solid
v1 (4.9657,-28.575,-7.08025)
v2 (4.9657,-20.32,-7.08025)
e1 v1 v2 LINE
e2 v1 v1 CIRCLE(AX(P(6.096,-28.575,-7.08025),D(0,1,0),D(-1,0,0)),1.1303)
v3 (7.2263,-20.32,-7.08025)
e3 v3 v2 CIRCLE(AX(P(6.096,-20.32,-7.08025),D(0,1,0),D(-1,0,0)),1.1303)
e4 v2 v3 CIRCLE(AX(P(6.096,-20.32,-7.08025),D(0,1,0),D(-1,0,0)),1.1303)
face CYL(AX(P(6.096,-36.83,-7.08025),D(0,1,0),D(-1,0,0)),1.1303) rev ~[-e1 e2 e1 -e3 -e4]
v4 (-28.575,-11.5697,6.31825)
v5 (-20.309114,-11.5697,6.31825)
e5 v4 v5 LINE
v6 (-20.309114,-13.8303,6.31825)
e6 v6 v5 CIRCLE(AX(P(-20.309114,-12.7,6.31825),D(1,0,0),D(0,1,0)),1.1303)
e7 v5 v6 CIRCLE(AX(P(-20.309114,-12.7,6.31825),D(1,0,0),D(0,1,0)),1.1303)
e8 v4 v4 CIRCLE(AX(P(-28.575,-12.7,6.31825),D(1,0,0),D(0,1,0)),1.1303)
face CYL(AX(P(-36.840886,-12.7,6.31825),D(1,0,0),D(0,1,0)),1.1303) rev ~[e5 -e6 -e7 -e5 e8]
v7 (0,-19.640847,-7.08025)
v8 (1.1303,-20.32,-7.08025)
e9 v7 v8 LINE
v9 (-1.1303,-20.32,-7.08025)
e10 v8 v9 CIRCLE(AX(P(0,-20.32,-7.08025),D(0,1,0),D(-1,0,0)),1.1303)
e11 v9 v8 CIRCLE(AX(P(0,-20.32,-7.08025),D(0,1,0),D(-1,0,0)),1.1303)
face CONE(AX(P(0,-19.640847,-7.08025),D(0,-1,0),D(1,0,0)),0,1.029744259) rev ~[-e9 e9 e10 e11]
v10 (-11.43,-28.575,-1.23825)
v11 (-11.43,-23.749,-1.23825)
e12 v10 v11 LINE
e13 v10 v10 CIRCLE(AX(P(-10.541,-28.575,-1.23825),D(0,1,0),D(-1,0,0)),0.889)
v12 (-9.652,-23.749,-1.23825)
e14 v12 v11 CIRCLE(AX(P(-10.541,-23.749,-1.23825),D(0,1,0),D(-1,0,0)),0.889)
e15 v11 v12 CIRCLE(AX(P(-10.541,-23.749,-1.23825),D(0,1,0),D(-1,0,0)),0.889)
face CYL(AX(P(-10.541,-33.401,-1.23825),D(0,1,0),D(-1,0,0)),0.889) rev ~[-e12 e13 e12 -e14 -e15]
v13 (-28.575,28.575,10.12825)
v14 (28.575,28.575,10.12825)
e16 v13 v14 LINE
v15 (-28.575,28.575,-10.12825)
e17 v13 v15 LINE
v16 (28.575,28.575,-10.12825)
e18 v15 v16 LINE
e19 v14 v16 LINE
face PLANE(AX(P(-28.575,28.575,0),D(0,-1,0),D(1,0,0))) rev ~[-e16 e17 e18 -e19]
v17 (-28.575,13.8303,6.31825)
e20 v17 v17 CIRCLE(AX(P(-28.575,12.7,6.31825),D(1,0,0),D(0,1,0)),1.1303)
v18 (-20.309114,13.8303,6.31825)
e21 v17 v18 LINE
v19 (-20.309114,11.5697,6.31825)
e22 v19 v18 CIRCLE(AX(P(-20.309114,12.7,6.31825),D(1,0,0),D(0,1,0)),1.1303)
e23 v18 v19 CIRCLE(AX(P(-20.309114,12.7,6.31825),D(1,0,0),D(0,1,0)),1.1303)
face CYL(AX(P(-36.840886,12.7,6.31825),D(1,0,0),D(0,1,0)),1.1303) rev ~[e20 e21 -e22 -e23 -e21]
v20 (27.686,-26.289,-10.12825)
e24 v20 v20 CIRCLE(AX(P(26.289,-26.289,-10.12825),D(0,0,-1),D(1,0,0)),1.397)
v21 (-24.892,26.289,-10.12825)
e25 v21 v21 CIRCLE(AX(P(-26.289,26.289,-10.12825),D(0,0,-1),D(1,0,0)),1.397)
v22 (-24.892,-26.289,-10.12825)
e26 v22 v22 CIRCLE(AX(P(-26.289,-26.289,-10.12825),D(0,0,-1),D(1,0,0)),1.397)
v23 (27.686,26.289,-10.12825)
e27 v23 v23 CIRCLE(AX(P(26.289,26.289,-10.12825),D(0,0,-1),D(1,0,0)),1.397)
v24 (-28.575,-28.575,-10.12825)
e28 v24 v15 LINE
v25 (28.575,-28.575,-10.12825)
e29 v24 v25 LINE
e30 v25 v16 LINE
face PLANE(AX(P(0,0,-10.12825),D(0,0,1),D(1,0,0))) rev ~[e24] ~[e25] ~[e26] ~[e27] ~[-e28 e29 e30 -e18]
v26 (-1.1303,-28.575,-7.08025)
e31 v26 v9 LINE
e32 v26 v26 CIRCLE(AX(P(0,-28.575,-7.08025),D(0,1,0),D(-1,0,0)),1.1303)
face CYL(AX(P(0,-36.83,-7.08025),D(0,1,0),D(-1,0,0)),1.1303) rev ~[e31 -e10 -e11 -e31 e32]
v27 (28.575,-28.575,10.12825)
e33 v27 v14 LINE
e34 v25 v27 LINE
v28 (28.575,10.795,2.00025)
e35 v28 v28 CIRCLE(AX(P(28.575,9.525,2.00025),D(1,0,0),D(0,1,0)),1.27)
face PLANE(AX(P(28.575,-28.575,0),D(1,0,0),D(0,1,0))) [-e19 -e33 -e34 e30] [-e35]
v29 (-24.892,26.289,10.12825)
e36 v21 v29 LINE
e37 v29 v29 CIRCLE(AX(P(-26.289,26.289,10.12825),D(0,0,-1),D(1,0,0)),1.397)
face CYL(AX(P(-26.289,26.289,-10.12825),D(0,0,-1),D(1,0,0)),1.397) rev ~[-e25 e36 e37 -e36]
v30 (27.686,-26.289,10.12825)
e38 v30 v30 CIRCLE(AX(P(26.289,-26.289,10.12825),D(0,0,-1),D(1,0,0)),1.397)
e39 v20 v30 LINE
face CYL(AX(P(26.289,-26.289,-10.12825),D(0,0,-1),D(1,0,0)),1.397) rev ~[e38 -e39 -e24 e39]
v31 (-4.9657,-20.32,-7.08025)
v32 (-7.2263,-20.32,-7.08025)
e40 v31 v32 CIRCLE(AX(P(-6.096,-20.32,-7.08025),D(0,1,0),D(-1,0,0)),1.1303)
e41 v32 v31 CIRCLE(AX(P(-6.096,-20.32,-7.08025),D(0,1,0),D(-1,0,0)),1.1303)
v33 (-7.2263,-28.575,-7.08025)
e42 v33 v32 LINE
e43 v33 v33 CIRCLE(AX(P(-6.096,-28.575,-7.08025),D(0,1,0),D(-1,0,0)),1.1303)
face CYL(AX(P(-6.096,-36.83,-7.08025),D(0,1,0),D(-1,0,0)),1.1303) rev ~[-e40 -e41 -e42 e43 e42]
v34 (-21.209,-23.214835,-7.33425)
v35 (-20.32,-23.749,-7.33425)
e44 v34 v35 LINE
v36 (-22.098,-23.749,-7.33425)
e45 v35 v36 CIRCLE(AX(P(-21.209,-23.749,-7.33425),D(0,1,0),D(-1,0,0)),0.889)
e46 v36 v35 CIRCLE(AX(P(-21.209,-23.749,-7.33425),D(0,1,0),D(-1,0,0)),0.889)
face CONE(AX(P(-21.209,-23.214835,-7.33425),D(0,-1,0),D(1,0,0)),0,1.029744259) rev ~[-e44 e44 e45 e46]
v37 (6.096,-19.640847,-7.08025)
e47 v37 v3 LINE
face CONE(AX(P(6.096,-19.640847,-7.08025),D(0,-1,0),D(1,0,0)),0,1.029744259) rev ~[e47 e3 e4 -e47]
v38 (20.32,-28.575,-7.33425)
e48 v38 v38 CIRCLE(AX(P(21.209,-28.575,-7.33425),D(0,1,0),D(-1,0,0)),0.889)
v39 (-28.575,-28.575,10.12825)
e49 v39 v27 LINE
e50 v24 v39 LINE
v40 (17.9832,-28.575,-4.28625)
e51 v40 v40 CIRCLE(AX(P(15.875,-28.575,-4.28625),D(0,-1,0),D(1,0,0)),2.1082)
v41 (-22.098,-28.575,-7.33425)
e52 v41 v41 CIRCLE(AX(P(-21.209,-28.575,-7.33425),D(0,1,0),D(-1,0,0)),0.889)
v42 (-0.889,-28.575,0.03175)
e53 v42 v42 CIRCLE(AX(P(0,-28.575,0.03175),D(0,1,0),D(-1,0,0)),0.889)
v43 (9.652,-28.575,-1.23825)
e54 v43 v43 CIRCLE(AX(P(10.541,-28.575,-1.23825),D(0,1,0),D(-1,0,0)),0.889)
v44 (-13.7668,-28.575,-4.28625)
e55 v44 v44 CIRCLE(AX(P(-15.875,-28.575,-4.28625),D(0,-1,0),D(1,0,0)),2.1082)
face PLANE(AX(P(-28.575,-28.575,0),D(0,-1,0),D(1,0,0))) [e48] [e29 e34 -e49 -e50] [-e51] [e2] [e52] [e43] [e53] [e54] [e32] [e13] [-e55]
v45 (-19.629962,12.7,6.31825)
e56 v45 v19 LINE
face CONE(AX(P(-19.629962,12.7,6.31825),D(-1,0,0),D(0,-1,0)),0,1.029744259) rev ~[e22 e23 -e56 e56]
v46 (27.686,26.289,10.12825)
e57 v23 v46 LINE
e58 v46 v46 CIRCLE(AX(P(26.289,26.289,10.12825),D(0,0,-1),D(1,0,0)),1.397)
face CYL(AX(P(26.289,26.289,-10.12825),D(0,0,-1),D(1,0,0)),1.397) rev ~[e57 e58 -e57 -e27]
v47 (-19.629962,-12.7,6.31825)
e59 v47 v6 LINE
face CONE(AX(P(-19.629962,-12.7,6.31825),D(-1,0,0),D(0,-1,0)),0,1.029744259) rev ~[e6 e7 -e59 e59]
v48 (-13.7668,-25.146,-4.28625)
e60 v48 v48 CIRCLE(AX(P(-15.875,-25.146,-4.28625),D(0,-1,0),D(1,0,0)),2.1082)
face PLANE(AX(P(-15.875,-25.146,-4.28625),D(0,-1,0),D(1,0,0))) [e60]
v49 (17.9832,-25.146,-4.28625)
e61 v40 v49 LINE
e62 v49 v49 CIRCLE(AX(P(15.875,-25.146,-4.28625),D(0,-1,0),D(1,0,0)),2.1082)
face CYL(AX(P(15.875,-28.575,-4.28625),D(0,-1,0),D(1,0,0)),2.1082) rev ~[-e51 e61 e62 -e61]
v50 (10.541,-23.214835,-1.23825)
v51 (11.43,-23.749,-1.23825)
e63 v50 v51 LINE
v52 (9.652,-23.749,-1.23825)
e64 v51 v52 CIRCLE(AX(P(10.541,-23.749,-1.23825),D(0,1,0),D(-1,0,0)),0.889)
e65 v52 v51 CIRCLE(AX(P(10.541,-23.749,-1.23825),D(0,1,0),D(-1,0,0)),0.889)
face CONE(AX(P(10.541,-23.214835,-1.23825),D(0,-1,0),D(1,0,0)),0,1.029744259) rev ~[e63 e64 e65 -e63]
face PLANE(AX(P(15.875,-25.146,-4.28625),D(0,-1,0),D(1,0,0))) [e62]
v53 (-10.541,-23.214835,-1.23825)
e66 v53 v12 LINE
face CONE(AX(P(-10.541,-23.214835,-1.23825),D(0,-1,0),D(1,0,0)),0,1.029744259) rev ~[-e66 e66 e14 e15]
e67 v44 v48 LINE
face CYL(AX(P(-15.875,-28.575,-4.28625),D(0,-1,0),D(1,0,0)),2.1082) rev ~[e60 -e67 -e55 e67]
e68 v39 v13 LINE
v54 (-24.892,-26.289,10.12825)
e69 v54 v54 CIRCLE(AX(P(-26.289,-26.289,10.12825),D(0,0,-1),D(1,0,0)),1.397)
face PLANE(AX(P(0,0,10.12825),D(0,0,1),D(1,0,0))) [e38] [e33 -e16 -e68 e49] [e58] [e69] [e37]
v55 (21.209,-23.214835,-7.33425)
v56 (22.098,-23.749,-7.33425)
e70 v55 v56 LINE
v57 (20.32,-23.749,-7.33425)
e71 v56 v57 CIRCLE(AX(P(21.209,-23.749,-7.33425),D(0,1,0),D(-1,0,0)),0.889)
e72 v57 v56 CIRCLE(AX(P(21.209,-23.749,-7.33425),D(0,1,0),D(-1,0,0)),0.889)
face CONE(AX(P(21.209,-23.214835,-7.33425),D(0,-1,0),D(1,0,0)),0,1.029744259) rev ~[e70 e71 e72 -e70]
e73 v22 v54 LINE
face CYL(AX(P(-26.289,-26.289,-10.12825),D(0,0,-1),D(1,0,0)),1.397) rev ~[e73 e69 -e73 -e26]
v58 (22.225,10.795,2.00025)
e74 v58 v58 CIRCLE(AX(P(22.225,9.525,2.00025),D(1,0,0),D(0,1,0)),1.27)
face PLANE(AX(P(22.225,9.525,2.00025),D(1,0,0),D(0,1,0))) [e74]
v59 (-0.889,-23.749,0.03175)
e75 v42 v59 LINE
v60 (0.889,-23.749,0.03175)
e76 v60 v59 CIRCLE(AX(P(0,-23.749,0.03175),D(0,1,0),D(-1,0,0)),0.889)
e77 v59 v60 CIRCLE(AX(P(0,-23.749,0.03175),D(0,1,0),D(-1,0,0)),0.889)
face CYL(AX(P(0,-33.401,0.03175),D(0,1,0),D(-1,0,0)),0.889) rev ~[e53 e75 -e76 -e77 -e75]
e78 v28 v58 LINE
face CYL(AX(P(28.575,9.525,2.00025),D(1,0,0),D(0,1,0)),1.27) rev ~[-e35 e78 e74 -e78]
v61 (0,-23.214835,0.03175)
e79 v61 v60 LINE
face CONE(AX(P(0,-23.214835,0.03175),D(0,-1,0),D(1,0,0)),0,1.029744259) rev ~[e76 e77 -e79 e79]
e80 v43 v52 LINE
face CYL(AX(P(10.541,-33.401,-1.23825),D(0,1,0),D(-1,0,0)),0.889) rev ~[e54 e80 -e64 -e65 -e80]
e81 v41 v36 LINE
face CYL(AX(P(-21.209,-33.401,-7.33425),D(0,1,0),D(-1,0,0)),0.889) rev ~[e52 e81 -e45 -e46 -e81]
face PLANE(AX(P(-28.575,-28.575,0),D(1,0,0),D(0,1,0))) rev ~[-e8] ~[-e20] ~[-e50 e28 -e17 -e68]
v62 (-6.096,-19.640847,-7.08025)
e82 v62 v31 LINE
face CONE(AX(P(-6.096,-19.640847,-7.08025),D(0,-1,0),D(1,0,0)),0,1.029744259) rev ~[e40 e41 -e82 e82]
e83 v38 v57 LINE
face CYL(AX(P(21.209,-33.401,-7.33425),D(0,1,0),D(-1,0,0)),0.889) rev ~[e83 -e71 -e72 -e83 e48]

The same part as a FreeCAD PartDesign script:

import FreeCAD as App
import Part
import Sketcher

V = App.Vector
Q = App.Units.Quantity


def add_polygon(sketch, points):
    """Adds a closed chain of lines whose ends are joined by coincident constraints."""
    first, n = sketch.GeometryCount, len(points)
    for a, b in zip(points, points[1:] + points[:1]):
        sketch.addGeometry(Part.LineSegment(App.Vector(*a, 0), App.Vector(*b, 0)), False)
    for i in range(n):
        sketch.addConstraint(Sketcher.Constraint("Coincident", first + i, 2, first + (i + 1) % n, 1))

doc = App.newDocument("Part")
body = doc.addObject("PartDesign::Body", "Body")

sketch1 = body.newObject("Sketcher::SketchObject", "Sketch")
sketch1.AttachmentSupport = (doc.getObject("XY_Plane"), [""])
sketch1.MapMode = "FlatFace"
add_polygon(sketch1, [(-29, 29), (-29, -29), (29, -29), (29, 29)])
sketch1.addConstraint(Sketcher.Constraint("Vertical", 0))
sketch1.addConstraint(Sketcher.Constraint("Horizontal", 1))
sketch1.addConstraint(Sketcher.Constraint("Vertical", 2))
sketch1.addConstraint(Sketcher.Constraint("Horizontal", 3))
sketch1.addConstraint(Sketcher.Constraint("Symmetric", 0, 2, 2, 2, -1, 1))
sketch1.addConstraint(Sketcher.Constraint("Equal", 3, 0))
sketch1.addConstraint(Sketcher.Constraint("DistanceX", 1, 1, 1, 2, Q("2.25 in")))
pad1 = body.newObject("PartDesign::Pad", "Pad")
pad1.Profile = sketch1
pad1.Length = Q("0.7975 in")
pad1.Midplane = True

sketch2 = body.newObject("Sketcher::SketchObject", "Sketch001")
sketch2.AttachmentSupport = (doc.getObject("XZ_Plane"), [""])
sketch2.MapMode = "FlatFace"
sketch2.AttachmentOffset = App.Placement(V(0, 0, 1.125 * 25.4), App.Rotation())
sketch2.addGeometry(Part.Circle(V(-15.9, -4.3, 0), V(0, 0, 1), 2.1), False)
sketch2.addGeometry(Part.Circle(V(15.9, -4.3, 0), V(0, 0, 1), 2.1), False)
sketch2.addConstraint(Sketcher.Constraint("Equal", 0, 1))
sketch2.addConstraint(Sketcher.Constraint("Symmetric", 0, 3, 1, 3, -2))
sketch2.addConstraint(Sketcher.Constraint("Diameter", 0, Q("0.166 in")))
sketch2.addConstraint(Sketcher.Constraint("DistanceX", 0, 3, 1, 3, Q("1.25 in")))
sketch2.addConstraint(Sketcher.Constraint("DistanceY", 0, 3, -1, 1, 4.28625))
pocket1 = body.newObject("PartDesign::Pocket", "Pocket")
pocket1.Profile = sketch2
pocket1.Length = Q("0.135 in")

sketch3 = body.newObject("Sketcher::SketchObject", "Sketch002")
sketch3.AttachmentSupport = (doc.getObject("XY_Plane"), [""])
sketch3.MapMode = "FlatFace"
sketch3.AttachmentOffset = App.Placement(V(0, 0, -10.12825), App.Rotation())
sketch3.addGeometry(Part.Circle(V(-26.3, -26.3, 0), V(0, 0, 1), 1.4), False)
sketch3.addGeometry(Part.Circle(V(26.3, -26.3, 0), V(0, 0, 1), 1.4), False)
sketch3.addGeometry(Part.Circle(V(26.3, 26.3, 0), V(0, 0, 1), 1.4), False)
sketch3.addGeometry(Part.Circle(V(-26.3, 26.3, 0), V(0, 0, 1), 1.4), False)
sketch3.addConstraint(Sketcher.Constraint("Equal", 0, 1))
sketch3.addConstraint(Sketcher.Constraint("Equal", 1, 2))
sketch3.addConstraint(Sketcher.Constraint("Equal", 2, 3))
sketch3.addConstraint(Sketcher.Constraint("Symmetric", 0, 3, 2, 3, -1, 1))
sketch3.addConstraint(Sketcher.Constraint("Symmetric", 1, 3, 3, 3, -1, 1))
sketch3.addConstraint(Sketcher.Constraint("Symmetric", 0, 3, 1, 3, -2))
sketch3.addConstraint(Sketcher.Constraint("Diameter", 0, Q("0.11 in")))
sketch3.addConstraint(Sketcher.Constraint("DistanceX", 0, 3, 1, 3, Q("2.07 in")))
sketch3.addConstraint(Sketcher.Constraint("DistanceY", 1, 3, 2, 3, Q("2.07 in")))
pocket2 = body.newObject("PartDesign::Pocket", "Pocket001")
pocket2.Profile = sketch3
pocket2.Type = "ThroughAll"
pocket2.Reversed = True

sketch4 = body.newObject("Sketcher::SketchObject", "Sketch003")
sketch4.AttachmentSupport = (doc.getObject("YZ_Plane"), [""])
sketch4.MapMode = "FlatFace"
sketch4.AttachmentOffset = App.Placement(V(0, 0, -1.125 * 25.4), App.Rotation())
sketch4.addGeometry(Part.Circle(V(-12.7, 6.3, 0), V(0, 0, 1), 1.1), False)
sketch4.addGeometry(Part.Circle(V(12.7, 6.3, 0), V(0, 0, 1), 1.1), False)
sketch4.addConstraint(Sketcher.Constraint("Equal", 0, 1))
sketch4.addConstraint(Sketcher.Constraint("Symmetric", 0, 3, 1, 3, -2))
sketch4.addConstraint(Sketcher.Constraint("Diameter", 0, Q("0.089 in")))
sketch4.addConstraint(Sketcher.Constraint("DistanceX", 0, 3, 1, 3, Q("1 in")))
sketch4.addConstraint(Sketcher.Constraint("DistanceY", -1, 1, 0, 3, 6.31825))
doc.recompute()
hole = body.newObject("PartDesign::Hole", "Hole")
hole.Profile = sketch4
hole.ThreadType = "None"
hole.Diameter = Q("0.089 in")
hole.DepthType = "Dimension"
hole.Depth = 8.265886
hole.DrillPoint = "Angled"
hole.DrillPointAngle = 118
hole.Reversed = True

sketch5 = body.newObject("Sketcher::SketchObject", "Sketch004")
sketch5.AttachmentSupport = (doc.getObject("YZ_Plane"), [""])
sketch5.MapMode = "FlatFace"
sketch5.AttachmentOffset = App.Placement(V(0, 0, 1.125 * 25.4), App.Rotation())
sketch5.addGeometry(Part.Circle(V(9.5, 2, 0), V(0, 0, 1), 1.3), False)
sketch5.addConstraint(Sketcher.Constraint("Diameter", 0, Q("0.1 in")))
sketch5.addConstraint(Sketcher.Constraint("DistanceX", -1, 1, 0, 3, Q("0.375 in")))
sketch5.addConstraint(Sketcher.Constraint("DistanceY", -1, 1, 0, 3, 2.00025))
pocket3 = body.newObject("PartDesign::Pocket", "Pocket002")
pocket3.Profile = sketch5
pocket3.Length = Q("0.25 in")

sketch6 = body.newObject("Sketcher::SketchObject", "Sketch005")
sketch6.AttachmentSupport = (doc.getObject("XZ_Plane"), [""])
sketch6.MapMode = "FlatFace"
sketch6.AttachmentOffset = App.Placement(V(0, 0, 1.125 * 25.4), App.Rotation())
sketch6.addGeometry(Part.Circle(V(-6.1, -7.1, 0), V(0, 0, 1), 1.1), False)
sketch6.addGeometry(Part.Circle(V(0, -7.1, 0), V(0, 0, 1), 1.1), False)
sketch6.addGeometry(Part.Circle(V(6.1, -7.1, 0), V(0, 0, 1), 1.1), False)
sketch6.addConstraint(Sketcher.Constraint("Equal", 0, 1))
sketch6.addConstraint(Sketcher.Constraint("Equal", 1, 2))
sketch6.addConstraint(Sketcher.Constraint("Symmetric", 0, 3, 2, 3, -2))
sketch6.addConstraint(Sketcher.Constraint("PointOnObject", 1, 3, -2))
sketch6.addConstraint(Sketcher.Constraint("Horizontal", 0, 3, 1, 3))
sketch6.addConstraint(Sketcher.Constraint("Diameter", 0, Q("0.089 in")))
sketch6.addConstraint(Sketcher.Constraint("DistanceX", 0, 3, -1, 1, Q("0.24 in")))
sketch6.addConstraint(Sketcher.Constraint("DistanceY", 0, 3, -1, 1, 7.08025))
doc.recompute()
hole2 = body.newObject("PartDesign::Hole", "Hole001")
hole2.Profile = sketch6
hole2.ThreadType = "None"
hole2.Diameter = Q("0.089 in")
hole2.DepthType = "Dimension"
hole2.Depth = Q("0.325 in")
hole2.DrillPoint = "Angled"
hole2.DrillPointAngle = 118

sketch7 = body.newObject("Sketcher::SketchObject", "Sketch006")
sketch7.AttachmentSupport = (doc.getObject("XZ_Plane"), [""])
sketch7.MapMode = "FlatFace"
sketch7.AttachmentOffset = App.Placement(V(0, 0, 1.125 * 25.4), App.Rotation())
sketch7.addGeometry(Part.Circle(V(-21.2, -7.3, 0), V(0, 0, 1), 0.9), False)
sketch7.addGeometry(Part.Circle(V(-10.5, -1.2, 0), V(0, 0, 1), 0.9), False)
sketch7.addGeometry(Part.Circle(V(10.5, -1.2, 0), V(0, 0, 1), 0.9), False)
sketch7.addGeometry(Part.Circle(V(21.2, -7.3, 0), V(0, 0, 1), 0.9), False)
sketch7.addConstraint(Sketcher.Constraint("Equal", 0, 1))
sketch7.addConstraint(Sketcher.Constraint("Equal", 1, 2))
sketch7.addConstraint(Sketcher.Constraint("Equal", 2, 3))
sketch7.addConstraint(Sketcher.Constraint("Symmetric", 1, 3, 2, 3, -2))
sketch7.addConstraint(Sketcher.Constraint("Symmetric", 0, 3, 3, 3, -2))
sketch7.addConstraint(Sketcher.Constraint("Diameter", 0, Q("0.07 in")))
sketch7.addConstraint(Sketcher.Constraint("DistanceX", 0, 3, 1, 3, Q("0.42 in")))
sketch7.addConstraint(Sketcher.Constraint("DistanceY", 0, 3, 1, 3, Q("0.24 in")))
sketch7.addConstraint(Sketcher.Constraint("DistanceX", 1, 3, 2, 3, Q("0.83 in")))
sketch7.addConstraint(Sketcher.Constraint("DistanceY", 0, 3, -1, 1, 7.33425))
doc.recompute()
hole3 = body.newObject("PartDesign::Hole", "Hole002")
hole3.Profile = sketch7
hole3.ThreadType = "None"
hole3.Diameter = Q("0.07 in")
hole3.DepthType = "Dimension"
hole3.Depth = Q("0.19 in")
hole3.DrillPoint = "Angled"
hole3.DrillPointAngle = 118

sketch8 = body.newObject("Sketcher::SketchObject", "Sketch007")
sketch8.AttachmentSupport = (doc.getObject("XZ_Plane"), [""])
sketch8.MapMode = "FlatFace"
sketch8.AttachmentOffset = App.Placement(V(0, 0, 1.125 * 25.4), App.Rotation())
sketch8.addGeometry(Part.Circle(V(0, 0, 0), V(0, 0, 1), 0.9), False)
sketch8.addConstraint(Sketcher.Constraint("PointOnObject", 0, 3, -2))
sketch8.addConstraint(Sketcher.Constraint("Diameter", 0, Q("0.07 in")))
sketch8.addConstraint(Sketcher.Constraint("DistanceY", -1, 1, 0, 3, 0.03175))
doc.recompute()
hole4 = body.newObject("PartDesign::Hole", "Hole003")
hole4.Profile = sketch8
hole4.ThreadType = "None"
hole4.Diameter = Q("0.07 in")
hole4.DepthType = "Dimension"
hole4.Depth = Q("0.19 in")
hole4.DrillPoint = "Angled"
hole4.DrillPointAngle = 118

doc.recompute()
